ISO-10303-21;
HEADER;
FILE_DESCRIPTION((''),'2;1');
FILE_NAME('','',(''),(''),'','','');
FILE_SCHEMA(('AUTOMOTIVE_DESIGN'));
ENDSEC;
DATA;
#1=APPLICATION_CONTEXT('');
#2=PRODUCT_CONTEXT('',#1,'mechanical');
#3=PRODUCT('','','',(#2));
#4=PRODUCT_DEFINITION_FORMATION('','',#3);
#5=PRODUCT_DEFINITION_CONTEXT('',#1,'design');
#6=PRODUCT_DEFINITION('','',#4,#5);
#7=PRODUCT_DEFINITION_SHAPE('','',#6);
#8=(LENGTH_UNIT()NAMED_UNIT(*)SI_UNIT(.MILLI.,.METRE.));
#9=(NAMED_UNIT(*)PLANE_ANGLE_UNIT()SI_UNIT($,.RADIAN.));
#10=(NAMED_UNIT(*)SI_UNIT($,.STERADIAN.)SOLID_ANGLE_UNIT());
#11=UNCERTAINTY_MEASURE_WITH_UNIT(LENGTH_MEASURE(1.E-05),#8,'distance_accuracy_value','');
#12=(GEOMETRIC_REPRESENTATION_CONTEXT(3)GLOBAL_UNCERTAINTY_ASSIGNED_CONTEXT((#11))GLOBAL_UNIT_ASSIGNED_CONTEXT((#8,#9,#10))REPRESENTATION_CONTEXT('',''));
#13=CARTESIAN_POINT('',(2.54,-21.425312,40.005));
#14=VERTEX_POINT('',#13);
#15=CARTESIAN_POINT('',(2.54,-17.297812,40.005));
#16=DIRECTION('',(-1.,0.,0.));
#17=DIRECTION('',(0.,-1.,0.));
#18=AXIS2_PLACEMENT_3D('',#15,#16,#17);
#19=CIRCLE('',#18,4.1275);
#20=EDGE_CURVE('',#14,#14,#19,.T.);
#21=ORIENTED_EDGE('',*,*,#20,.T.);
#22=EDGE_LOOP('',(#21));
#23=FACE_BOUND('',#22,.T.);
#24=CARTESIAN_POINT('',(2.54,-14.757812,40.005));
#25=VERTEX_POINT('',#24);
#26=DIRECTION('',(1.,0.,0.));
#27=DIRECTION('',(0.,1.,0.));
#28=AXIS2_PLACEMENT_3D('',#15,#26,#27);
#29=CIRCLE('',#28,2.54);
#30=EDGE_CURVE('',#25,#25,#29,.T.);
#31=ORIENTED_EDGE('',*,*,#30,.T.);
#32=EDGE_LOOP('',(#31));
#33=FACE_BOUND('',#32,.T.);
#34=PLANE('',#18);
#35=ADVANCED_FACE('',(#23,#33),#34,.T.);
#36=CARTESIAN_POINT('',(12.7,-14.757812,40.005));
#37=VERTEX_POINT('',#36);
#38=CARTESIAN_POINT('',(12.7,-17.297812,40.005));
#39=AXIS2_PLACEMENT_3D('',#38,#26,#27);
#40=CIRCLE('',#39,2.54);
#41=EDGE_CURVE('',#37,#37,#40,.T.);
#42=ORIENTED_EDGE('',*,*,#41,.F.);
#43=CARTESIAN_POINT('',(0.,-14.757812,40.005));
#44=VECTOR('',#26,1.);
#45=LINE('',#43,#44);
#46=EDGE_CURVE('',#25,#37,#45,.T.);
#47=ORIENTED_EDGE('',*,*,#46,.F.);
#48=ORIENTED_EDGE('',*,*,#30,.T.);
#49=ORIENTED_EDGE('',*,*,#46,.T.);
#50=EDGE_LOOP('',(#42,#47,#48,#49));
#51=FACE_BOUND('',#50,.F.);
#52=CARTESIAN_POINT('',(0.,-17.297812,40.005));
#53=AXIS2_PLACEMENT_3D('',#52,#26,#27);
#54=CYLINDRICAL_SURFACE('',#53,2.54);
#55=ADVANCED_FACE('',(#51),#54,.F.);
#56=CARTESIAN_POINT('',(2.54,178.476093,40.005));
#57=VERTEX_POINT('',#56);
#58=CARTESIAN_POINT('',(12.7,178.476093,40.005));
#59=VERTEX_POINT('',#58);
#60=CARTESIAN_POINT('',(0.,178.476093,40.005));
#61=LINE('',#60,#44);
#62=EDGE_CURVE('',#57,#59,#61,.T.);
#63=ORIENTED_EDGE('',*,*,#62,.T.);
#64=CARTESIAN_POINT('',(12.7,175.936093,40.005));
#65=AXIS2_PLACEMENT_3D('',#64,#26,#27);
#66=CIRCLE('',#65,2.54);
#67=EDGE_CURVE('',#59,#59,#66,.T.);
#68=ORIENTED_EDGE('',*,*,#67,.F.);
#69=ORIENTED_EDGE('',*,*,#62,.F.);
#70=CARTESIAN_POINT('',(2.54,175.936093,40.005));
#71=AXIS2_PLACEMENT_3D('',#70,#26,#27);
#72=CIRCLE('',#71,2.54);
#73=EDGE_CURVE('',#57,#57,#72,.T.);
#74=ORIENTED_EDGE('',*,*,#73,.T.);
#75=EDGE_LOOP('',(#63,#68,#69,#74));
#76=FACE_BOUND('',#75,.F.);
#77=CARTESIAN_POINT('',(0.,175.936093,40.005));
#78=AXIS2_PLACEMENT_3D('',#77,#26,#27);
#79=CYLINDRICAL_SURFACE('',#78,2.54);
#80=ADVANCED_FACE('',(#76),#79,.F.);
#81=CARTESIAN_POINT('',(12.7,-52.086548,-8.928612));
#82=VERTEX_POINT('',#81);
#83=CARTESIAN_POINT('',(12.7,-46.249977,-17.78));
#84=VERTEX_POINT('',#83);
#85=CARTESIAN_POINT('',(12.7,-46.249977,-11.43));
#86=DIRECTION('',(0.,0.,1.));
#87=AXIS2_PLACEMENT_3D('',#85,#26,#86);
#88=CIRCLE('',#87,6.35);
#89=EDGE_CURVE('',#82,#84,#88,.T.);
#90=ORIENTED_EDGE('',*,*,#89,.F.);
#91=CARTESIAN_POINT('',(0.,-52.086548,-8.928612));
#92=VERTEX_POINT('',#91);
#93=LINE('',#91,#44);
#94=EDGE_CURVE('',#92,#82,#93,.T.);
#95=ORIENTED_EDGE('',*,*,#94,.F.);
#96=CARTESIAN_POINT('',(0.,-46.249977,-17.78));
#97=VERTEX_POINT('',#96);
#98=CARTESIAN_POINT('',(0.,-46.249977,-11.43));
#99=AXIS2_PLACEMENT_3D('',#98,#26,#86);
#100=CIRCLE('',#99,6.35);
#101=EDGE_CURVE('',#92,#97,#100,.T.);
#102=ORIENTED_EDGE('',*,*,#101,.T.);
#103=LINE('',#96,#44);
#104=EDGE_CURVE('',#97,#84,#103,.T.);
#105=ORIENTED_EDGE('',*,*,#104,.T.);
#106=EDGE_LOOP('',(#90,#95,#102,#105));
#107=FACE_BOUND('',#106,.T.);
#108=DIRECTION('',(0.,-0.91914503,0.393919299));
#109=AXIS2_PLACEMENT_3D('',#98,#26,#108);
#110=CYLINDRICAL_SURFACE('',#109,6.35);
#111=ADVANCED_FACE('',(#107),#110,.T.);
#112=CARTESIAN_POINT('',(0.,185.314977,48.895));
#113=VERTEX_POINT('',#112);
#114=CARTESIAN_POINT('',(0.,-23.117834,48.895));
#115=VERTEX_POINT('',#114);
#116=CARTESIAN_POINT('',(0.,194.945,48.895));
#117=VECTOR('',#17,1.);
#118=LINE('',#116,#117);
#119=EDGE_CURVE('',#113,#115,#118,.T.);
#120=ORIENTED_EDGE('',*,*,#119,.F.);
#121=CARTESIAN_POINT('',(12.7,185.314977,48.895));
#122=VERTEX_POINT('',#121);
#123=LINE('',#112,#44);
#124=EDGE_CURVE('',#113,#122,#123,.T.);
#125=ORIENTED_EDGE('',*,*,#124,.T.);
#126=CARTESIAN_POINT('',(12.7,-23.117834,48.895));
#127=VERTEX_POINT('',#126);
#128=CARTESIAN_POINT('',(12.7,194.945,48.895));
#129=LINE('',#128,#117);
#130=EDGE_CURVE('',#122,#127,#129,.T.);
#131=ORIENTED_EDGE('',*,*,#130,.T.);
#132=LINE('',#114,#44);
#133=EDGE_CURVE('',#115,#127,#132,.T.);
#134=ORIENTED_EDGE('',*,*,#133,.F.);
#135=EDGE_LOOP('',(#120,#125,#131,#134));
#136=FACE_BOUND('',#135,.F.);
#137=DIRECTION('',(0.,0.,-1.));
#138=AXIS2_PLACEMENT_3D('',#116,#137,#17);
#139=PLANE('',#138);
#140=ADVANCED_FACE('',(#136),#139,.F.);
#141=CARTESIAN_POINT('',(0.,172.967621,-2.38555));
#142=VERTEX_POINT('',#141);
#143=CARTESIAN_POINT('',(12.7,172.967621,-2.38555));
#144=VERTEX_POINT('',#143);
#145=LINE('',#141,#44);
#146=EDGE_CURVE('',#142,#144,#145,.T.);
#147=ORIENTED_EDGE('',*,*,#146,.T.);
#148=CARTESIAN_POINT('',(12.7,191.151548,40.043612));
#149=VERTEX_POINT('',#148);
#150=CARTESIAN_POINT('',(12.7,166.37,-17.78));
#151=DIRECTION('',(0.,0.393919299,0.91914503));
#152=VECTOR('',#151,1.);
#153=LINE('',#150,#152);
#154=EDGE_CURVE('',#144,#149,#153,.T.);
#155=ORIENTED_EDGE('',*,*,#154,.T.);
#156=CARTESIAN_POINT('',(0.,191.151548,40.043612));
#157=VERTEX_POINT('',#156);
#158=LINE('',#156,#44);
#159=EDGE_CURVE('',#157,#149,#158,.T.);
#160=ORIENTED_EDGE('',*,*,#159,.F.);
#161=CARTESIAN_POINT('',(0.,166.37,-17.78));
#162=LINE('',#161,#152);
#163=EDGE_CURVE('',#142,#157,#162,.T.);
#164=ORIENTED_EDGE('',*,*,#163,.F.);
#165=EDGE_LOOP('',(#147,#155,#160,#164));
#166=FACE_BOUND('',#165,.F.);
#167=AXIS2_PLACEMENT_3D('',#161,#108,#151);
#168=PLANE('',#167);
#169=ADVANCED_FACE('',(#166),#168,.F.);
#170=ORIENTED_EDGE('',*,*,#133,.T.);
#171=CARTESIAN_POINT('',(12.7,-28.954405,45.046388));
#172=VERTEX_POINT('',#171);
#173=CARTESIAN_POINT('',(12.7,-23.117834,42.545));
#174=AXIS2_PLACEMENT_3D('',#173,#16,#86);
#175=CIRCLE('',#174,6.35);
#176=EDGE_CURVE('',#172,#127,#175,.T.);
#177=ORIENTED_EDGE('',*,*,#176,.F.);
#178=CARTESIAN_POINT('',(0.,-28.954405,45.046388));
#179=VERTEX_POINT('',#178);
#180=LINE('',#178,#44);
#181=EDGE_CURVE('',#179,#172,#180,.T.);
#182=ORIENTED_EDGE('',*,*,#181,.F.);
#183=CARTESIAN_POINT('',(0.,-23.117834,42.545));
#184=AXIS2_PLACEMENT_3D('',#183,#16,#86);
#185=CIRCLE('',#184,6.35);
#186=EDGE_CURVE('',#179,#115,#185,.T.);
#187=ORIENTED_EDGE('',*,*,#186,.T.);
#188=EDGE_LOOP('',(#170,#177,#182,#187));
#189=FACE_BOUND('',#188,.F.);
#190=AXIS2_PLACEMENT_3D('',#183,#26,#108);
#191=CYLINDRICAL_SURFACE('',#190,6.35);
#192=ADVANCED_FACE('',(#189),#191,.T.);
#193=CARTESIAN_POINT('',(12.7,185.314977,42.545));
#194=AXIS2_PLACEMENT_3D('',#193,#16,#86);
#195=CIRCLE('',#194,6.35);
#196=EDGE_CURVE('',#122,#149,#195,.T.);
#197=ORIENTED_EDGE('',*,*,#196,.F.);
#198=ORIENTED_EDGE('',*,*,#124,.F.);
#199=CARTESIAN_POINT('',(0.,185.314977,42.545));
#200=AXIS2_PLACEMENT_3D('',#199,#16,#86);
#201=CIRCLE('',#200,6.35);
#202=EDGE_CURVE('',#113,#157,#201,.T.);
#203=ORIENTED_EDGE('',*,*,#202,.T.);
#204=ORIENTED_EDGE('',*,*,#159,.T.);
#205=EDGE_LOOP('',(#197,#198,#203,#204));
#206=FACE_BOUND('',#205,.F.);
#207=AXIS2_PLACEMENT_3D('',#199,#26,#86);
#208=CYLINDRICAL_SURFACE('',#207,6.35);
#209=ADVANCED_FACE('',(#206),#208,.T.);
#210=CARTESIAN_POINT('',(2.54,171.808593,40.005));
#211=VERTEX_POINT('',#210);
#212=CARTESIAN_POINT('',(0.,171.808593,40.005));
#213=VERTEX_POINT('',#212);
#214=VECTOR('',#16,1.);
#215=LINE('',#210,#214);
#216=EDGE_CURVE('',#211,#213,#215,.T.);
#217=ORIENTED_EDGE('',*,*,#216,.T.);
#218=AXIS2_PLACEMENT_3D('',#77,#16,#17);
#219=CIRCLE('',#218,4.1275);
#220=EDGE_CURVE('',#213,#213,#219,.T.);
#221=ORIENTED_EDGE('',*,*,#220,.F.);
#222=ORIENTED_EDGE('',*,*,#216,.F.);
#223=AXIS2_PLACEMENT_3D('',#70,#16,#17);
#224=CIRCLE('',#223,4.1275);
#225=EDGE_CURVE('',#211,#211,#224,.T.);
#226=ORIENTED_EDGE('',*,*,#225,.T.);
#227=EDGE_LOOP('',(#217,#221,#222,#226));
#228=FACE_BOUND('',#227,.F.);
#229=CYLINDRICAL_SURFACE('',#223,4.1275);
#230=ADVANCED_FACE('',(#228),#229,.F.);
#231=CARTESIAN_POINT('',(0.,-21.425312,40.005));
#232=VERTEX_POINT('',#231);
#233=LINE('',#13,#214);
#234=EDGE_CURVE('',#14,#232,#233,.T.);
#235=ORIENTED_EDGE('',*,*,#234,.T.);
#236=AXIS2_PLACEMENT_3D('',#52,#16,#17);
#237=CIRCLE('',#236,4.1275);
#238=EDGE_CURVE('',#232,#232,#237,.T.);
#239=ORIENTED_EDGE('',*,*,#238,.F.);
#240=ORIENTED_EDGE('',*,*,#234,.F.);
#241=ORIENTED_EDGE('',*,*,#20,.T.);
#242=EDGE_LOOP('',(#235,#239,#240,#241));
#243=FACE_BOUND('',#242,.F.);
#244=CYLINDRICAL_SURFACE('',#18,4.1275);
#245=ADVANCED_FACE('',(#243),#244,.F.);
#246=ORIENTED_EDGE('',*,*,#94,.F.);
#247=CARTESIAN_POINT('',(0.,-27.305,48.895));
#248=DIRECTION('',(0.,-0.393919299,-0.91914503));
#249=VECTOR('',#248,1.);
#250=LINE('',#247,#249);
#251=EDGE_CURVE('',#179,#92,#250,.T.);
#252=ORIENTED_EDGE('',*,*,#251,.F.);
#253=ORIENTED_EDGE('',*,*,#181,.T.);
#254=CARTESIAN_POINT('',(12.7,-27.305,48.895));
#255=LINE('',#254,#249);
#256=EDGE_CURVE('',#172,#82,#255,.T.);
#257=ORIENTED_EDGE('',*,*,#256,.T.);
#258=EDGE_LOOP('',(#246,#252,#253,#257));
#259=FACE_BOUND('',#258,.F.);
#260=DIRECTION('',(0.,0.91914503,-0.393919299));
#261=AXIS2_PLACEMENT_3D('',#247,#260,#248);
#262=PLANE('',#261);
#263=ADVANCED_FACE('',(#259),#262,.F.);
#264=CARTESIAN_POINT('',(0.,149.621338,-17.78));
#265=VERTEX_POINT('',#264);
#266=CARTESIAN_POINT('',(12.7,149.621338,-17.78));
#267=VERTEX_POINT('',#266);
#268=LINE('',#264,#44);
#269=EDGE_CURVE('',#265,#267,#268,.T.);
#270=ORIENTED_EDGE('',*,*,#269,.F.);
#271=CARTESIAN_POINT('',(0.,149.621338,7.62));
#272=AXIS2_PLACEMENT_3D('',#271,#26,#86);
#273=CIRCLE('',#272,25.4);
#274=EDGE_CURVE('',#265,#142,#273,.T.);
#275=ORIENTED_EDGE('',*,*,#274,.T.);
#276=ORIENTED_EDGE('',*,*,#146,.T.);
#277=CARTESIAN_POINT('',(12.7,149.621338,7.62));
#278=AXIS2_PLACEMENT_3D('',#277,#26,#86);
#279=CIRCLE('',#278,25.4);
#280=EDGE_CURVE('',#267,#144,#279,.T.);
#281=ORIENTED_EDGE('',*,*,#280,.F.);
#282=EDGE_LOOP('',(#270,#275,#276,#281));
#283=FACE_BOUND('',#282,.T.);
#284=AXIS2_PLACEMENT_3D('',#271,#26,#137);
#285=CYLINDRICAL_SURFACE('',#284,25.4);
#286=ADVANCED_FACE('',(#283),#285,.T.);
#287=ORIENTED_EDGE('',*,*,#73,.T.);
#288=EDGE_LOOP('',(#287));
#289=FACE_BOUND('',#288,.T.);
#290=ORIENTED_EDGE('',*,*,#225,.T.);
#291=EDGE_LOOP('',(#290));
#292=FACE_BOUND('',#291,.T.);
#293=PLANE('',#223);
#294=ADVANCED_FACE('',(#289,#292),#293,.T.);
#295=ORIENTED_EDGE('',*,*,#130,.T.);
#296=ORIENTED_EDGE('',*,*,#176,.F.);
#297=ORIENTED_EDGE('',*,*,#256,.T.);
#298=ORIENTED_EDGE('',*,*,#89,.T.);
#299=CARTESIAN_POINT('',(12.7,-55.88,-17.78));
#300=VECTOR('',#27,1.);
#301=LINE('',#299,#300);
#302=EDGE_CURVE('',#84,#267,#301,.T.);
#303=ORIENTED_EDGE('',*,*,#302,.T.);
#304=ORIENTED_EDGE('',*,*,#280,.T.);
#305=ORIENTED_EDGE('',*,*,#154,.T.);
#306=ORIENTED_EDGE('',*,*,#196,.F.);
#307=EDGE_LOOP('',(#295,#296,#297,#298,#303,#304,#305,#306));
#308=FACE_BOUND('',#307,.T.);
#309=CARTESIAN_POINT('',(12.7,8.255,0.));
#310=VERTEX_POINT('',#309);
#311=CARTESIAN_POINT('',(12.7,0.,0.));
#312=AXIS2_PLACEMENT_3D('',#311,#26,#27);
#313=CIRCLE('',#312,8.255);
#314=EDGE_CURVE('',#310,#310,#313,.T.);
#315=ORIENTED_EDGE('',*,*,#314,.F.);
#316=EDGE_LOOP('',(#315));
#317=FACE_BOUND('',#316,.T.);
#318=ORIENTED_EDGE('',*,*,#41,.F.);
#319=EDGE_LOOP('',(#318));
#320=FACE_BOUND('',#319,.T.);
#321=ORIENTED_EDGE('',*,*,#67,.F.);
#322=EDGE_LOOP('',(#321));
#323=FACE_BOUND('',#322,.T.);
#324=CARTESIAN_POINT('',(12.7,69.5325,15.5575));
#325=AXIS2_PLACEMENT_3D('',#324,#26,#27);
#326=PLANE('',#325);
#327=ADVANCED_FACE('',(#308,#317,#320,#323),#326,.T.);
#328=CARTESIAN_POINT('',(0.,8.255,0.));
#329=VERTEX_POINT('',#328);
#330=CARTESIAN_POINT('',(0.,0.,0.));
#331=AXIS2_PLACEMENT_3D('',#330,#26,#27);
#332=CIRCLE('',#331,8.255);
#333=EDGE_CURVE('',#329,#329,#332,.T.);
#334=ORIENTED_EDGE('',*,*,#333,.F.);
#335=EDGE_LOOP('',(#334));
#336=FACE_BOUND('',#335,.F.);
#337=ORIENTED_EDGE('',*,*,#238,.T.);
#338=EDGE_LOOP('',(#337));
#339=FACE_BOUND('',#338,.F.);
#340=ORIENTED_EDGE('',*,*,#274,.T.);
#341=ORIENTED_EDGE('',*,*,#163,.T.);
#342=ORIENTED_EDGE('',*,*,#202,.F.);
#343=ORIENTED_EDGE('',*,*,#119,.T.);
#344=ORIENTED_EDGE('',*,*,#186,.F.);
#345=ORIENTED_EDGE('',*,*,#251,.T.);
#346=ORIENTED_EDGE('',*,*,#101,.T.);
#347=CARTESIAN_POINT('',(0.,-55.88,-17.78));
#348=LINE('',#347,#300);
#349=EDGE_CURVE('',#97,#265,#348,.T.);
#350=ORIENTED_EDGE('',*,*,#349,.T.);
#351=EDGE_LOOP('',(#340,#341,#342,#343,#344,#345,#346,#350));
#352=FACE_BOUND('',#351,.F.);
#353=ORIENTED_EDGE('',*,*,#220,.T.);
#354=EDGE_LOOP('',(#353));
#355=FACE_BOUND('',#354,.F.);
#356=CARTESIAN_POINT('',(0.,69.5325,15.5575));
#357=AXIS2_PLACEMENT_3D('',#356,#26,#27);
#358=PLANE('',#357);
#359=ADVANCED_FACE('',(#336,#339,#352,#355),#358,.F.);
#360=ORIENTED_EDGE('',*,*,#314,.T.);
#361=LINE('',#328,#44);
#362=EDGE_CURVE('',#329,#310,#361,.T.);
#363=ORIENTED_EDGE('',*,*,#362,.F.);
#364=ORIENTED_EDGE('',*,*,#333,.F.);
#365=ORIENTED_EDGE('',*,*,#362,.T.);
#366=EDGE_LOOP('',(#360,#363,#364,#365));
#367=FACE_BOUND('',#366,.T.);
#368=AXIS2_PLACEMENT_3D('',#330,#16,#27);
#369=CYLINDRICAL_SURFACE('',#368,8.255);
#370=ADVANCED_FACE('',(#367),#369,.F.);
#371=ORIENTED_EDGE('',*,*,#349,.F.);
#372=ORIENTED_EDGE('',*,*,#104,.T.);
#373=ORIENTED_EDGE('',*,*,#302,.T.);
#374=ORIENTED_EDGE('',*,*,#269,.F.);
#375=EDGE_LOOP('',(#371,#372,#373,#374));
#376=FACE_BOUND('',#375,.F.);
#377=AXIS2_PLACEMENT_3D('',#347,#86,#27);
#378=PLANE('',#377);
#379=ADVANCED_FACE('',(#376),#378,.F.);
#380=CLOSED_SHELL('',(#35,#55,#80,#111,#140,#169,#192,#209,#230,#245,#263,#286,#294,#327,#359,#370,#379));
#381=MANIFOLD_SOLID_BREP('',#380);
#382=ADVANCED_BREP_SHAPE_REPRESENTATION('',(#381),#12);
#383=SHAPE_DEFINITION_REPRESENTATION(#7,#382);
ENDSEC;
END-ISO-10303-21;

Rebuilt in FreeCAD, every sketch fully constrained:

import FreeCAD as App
import Part
import Sketcher

V = App.Vector
Q = App.Units.Quantity


def edges_at(feature, points):
    """Names of the edges that pass closest to the given points."""
    edges = feature.Shape.Edges
    near = lambda p: min(range(len(edges)), key=lambda i: edges[i].distToShape(Part.Vertex(*p))[0])
    return sorted({f"Edge{near(p) + 1}" for p in points})


def add_polygon(sketch, points):
    """Adds a closed chain of lines whose ends are joined by coincident constraints."""
    first, n = sketch.GeometryCount, len(points)
    for a, b in zip(points, points[1:] + points[:1]):
        sketch.addGeometry(Part.LineSegment(App.Vector(*a, 0), App.Vector(*b, 0)), False)
    for i in range(n):
        sketch.addConstraint(Sketcher.Constraint("Coincident", first + i, 2, first + (i + 1) % n, 1))

doc = App.newDocument("Part")
body = doc.addObject("PartDesign::Body", "Body")

# Sketch on YZ plane
sketch1 = body.newObject("Sketcher::SketchObject", "Sketch")
sketch1.AttachmentSupport = (doc.getObject("YZ_Plane"), [""])
sketch1.MapMode = "FlatFace"
add_polygon(sketch1, [(-27, 49), (-56, -18), (166, -18), (195, 49)])  # lines 0-3
sketch1.addGeometry(Part.Circle(V(0, 0, 0), V(0, 0, 1), 8), False)  # 4
sketch1.addConstraint([
    Sketcher.Constraint("Horizontal", 1),
    Sketcher.Constraint("Horizontal", 3),
    Sketcher.Constraint("Coincident", 4, 3, -1, 1),
    Sketcher.Constraint("Parallel", 0, 2),
    Sketcher.Constraint("Diameter", 4, Q("0.65 in")),
    Sketcher.Constraint("DistanceX", 1, 1, 1, 2, Q("8.75 in")),
    Sketcher.Constraint("DistanceX", 0, 2, -1, 1, Q("2.2 in")),
    Sketcher.Constraint("DistanceY", 0, 2, -1, 1, Q("0.7 in")),
    Sketcher.Constraint("DistanceX", -1, 1, 2, 2, Q("7.675 in")),
    Sketcher.Constraint("DistanceY", -1, 1, 2, 2, Q("1.925 in")),
])
pad1 = body.newObject("PartDesign::Pad", "Pad")
pad1.Profile = sketch1
pad1.Length = Q("0.5 in")

# Sketch on YZ plane
sketch2 = body.newObject("Sketcher::SketchObject", "Sketch001")
sketch2.AttachmentSupport = (doc.getObject("YZ_Plane"), [""])
sketch2.MapMode = "FlatFace"
sketch2.addGeometry([
    Part.Circle(V(175.9, 40, 0), V(0, 0, 1), 2.5),
    Part.Circle(V(-17.3, 40, 0), V(0, 0, 1), 2.5),
], False)
sketch2.addConstraint([
    Sketcher.Constraint("Equal", 0, 1),
    Sketcher.Constraint("Horizontal", 0, 3, 1, 3),
    Sketcher.Constraint("Diameter", 0, Q("0.2 in")),
    Sketcher.Constraint("DistanceY", -1, 1, 0, 3, Q("1.575 in")),
    Sketcher.Constraint("DistanceX", -1, 1, 0, 3, Q("175.936093 mm")),
    Sketcher.Constraint("DistanceX", 1, 3, -1, 1, Q("17.297812 mm")),
])
doc.recompute()
hole = body.newObject("PartDesign::Hole", "Hole")
hole.Profile = sketch2
hole.ThreadType = "None"
hole.Diameter = Q("0.2 in")
hole.DepthType = "ThroughAll"
hole.HoleCutType = "Counterbore"
hole.HoleCutDiameter = Q("0.325 in")
hole.HoleCutDepth = Q("0.1 in")
hole.Reversed = True
doc.recompute()

fillet = body.newObject("PartDesign::Fillet", "Fillet")
fillet.Base = (hole, edges_at(hole, [(6.35, 194.945, 48.895), (6.35, -27.305, 48.895), (6.35, -55.88, -17.78)]))
fillet.Radius = Q("0.25 in")
doc.recompute()

fillet2 = body.newObject("PartDesign::Fillet", "Fillet001")
fillet2.Base = (fillet, edges_at(fillet, [(6.35, 166.37, -17.78)]))
fillet2.Radius = Q("1 in")

doc.recompute()
